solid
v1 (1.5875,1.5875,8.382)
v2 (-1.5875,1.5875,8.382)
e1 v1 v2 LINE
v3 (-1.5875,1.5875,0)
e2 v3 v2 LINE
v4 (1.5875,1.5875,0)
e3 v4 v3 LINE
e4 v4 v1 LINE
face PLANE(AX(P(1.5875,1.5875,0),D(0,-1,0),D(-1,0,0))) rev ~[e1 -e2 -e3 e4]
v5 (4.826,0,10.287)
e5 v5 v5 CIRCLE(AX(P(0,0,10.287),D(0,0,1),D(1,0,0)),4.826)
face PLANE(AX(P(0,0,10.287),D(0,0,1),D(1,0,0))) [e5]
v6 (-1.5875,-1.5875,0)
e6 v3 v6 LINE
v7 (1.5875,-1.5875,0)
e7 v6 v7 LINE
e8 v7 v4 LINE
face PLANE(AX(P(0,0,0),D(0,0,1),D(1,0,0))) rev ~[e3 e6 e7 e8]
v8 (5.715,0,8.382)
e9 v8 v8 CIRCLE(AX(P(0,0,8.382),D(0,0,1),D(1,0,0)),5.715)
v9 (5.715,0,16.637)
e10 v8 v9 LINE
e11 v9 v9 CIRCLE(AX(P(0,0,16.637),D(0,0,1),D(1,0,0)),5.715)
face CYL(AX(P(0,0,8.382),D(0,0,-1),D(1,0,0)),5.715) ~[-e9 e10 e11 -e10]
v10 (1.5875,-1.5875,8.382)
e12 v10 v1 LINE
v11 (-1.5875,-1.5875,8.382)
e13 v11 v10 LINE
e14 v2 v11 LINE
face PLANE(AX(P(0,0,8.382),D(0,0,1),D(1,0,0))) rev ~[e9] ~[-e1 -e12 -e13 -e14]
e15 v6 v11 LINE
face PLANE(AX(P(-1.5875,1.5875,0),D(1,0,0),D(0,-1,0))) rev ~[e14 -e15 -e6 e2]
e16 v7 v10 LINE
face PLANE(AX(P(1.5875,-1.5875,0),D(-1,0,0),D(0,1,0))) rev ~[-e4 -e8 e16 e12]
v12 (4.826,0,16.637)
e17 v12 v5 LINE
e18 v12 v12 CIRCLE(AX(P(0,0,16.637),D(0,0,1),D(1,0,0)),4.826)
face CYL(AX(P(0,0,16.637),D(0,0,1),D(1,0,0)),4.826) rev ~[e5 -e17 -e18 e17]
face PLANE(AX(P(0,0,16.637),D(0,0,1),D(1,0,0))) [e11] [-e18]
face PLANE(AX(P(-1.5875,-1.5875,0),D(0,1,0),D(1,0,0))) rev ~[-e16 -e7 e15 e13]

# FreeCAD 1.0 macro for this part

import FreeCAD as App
import Part
import Sketcher
Q = App.Units.Quantity

doc = App.newDocument("Part")
body = doc.addObject("PartDesign::Body", "Body")

# Sketch on XY plane
sketch1 = body.newObject("Sketcher::SketchObject", "Sketch")
sketch1.AttachmentSupport = (doc.getObject("XY_Plane"), [""])
sketch1.MapMode = "FlatFace"
sketch1.addGeometry(Part.LineSegment(App.Vector(1.6, -1.6, 0), App.Vector(1.6, 1.6, 0)), False)
sketch1.addGeometry(Part.LineSegment(App.Vector(1.6, 1.6, 0), App.Vector(-1.6, 1.6, 0)), False)
sketch1.addGeometry(Part.LineSegment(App.Vector(-1.6, 1.6, 0), App.Vector(-1.6, -1.6, 0)), False)
sketch1.addGeometry(Part.LineSegment(App.Vector(-1.6, -1.6, 0), App.Vector(1.6, -1.6, 0)), False)
sketch1.addConstraint(Sketcher.Constraint("Coincident", 0, 2, 1, 1))
sketch1.addConstraint(Sketcher.Constraint("Coincident", 1, 2, 2, 1))
sketch1.addConstraint(Sketcher.Constraint("Coincident", 2, 2, 3, 1))
sketch1.addConstraint(Sketcher.Constraint("Coincident", 3, 2, 0, 1))
sketch1.addConstraint(Sketcher.Constraint("Vertical", 0))
sketch1.addConstraint(Sketcher.Constraint("Horizontal", 1))
sketch1.addConstraint(Sketcher.Constraint("Vertical", 2))
sketch1.addConstraint(Sketcher.Constraint("Horizontal", 3))
sketch1.addConstraint(Sketcher.Constraint("Symmetric", 0, 2, 2, 2, -1, 1))
sketch1.addConstraint(Sketcher.Constraint("Equal", 3, 0))
sketch1.addConstraint(Sketcher.Constraint("DistanceX", 1, 2, 1, 1, Q("0.125 in")))
pad1 = body.newObject("PartDesign::Pad", "Pad")
pad1.Profile = sketch1
pad1.Length = Q("0.33 in")

# Sketch on XY plane
sketch2 = body.newObject("Sketcher::SketchObject", "Sketch001")
sketch2.AttachmentSupport = (doc.getObject("XY_Plane"), [""])
sketch2.MapMode = "FlatFace"
sketch2.AttachmentOffset = App.Placement(App.Vector(0, 0, 0.33 * 25.4), App.Rotation())
sketch2.addGeometry(Part.Circle(App.Vector(0, 0, 0), App.Vector(0, 0, 1), 6), False)
sketch2.addConstraint(Sketcher.Constraint("Coincident", 0, 3, -1, 1))
sketch2.addConstraint(Sketcher.Constraint("Diameter", 0, Q("0.45 in")))
pad2 = body.newObject("PartDesign::Pad", "Pad001")
pad2.Profile = sketch2
pad2.Length = Q("0.325 in")

# Sketch on XY plane
sketch3 = body.newObject("Sketcher::SketchObject", "Sketch002")
sketch3.AttachmentSupport = (doc.getObject("XY_Plane"), [""])
sketch3.MapMode = "FlatFace"
sketch3.AttachmentOffset = App.Placement(App.Vector(0, 0, 0.655 * 25.4), App.Rotation())
sketch3.addGeometry(Part.Circle(App.Vector(0, 0, 0), App.Vector(0, 0, 1), 4.8), False)
sketch3.addConstraint(Sketcher.Constraint("Coincident", 0, 3, -1, 1))
sketch3.addConstraint(Sketcher.Constraint("Diameter", 0, Q("0.38 in")))
pocket1 = body.newObject("PartDesign::Pocket", "Pocket")
pocket1.Profile = sketch3
pocket1.Length = Q("0.25 in")

doc.recompute()
